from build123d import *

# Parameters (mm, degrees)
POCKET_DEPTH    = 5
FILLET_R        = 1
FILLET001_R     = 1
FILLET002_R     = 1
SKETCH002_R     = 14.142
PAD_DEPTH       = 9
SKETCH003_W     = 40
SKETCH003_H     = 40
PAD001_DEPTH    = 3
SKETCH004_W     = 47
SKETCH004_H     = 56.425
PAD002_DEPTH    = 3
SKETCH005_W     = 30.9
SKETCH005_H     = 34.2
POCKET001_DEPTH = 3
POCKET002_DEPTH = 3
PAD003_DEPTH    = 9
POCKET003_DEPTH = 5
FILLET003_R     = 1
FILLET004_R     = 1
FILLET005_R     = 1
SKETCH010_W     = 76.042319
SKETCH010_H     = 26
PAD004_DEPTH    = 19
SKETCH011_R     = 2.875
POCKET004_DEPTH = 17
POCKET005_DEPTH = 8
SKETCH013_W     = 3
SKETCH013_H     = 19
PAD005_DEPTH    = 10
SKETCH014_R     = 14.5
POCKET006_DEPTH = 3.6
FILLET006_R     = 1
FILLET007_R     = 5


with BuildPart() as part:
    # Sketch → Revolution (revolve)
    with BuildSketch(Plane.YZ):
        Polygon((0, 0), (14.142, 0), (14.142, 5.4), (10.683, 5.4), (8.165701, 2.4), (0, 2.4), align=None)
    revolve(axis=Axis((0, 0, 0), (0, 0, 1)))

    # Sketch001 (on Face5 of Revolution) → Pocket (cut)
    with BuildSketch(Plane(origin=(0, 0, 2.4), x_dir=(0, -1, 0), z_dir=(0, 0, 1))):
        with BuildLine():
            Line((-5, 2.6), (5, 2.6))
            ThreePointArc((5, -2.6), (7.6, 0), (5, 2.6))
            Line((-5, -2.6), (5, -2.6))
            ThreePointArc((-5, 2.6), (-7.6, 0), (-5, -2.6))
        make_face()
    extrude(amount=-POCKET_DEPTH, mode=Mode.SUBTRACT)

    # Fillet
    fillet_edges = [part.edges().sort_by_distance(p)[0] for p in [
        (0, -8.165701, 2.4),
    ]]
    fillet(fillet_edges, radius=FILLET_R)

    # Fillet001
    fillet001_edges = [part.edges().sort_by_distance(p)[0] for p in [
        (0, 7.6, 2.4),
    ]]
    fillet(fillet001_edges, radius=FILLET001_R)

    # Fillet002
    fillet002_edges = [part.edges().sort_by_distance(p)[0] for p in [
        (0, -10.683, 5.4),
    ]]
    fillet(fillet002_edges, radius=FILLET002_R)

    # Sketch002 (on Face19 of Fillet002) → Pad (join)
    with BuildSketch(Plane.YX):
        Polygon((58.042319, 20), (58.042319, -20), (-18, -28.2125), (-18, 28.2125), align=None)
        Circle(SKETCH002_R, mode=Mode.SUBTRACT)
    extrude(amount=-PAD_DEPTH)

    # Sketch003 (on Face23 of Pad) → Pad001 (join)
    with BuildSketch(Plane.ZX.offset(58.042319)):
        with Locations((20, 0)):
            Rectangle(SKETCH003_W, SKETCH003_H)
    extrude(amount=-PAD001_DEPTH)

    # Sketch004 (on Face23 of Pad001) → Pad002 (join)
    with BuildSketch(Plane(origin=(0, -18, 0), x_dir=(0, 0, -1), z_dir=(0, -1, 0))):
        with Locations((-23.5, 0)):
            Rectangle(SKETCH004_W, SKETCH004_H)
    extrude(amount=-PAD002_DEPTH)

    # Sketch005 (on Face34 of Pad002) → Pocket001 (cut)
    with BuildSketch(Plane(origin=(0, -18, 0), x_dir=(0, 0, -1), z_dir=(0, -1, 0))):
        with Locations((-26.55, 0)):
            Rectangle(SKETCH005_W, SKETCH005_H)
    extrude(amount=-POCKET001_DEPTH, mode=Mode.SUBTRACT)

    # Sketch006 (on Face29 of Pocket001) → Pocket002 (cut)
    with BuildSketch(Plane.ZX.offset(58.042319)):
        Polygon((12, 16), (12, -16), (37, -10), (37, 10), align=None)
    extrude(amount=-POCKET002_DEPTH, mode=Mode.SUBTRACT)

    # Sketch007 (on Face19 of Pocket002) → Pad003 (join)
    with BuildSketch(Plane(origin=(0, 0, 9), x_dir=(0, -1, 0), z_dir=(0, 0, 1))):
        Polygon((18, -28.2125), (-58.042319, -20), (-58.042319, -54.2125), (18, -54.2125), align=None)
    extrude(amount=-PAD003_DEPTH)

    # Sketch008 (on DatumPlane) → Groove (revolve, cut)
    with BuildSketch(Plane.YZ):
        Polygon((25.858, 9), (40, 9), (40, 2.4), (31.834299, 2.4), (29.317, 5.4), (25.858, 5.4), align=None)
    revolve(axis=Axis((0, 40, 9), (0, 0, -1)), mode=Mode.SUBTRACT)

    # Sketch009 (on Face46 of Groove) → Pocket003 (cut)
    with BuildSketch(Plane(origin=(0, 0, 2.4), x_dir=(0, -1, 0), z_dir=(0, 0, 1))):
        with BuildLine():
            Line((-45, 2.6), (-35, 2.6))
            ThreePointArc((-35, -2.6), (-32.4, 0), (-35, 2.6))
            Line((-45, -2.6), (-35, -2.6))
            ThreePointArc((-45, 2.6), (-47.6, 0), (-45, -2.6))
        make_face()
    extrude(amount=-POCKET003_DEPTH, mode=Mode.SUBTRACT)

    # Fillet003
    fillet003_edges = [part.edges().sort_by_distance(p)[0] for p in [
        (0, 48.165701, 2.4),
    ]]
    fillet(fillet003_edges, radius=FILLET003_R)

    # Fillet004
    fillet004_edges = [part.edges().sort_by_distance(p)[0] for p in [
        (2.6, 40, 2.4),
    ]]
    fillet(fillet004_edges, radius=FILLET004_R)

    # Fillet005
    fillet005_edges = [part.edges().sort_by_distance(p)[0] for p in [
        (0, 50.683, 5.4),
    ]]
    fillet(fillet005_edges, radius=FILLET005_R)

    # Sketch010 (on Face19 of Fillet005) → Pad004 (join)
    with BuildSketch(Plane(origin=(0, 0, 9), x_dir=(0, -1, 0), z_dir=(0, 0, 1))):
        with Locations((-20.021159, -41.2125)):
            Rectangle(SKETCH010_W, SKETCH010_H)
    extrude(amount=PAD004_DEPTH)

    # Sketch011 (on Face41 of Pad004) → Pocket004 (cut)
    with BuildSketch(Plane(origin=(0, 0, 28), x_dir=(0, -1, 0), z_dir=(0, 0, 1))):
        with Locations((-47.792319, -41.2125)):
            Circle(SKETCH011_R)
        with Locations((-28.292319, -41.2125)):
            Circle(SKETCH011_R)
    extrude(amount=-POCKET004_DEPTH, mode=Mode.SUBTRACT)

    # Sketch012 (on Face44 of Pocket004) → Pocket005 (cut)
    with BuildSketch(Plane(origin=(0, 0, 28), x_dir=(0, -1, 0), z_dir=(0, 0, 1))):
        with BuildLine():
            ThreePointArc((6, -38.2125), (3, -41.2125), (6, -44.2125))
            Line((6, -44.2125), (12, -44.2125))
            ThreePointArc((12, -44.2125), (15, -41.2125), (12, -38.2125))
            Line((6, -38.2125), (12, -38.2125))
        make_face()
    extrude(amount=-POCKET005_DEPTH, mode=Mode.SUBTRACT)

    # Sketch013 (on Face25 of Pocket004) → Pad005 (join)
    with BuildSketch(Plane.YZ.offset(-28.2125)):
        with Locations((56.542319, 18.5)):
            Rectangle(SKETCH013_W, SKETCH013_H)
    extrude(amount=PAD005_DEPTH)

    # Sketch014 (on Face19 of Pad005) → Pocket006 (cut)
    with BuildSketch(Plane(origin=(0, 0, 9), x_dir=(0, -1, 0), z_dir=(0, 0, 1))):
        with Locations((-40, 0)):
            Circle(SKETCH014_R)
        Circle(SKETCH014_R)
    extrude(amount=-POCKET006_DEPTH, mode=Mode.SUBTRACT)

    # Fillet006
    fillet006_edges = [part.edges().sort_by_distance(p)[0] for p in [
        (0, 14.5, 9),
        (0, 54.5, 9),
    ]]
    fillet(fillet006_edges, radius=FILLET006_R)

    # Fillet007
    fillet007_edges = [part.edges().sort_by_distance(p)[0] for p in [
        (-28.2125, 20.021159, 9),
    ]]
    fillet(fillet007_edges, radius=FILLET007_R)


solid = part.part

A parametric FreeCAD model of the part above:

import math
import FreeCAD as App
import Part
import Sketcher
from FreeCAD import Vector
Q = App.Units.Quantity


def edges_at(feature, points):
    """Names of the edges that pass closest to the given points."""
    edges = feature.Shape.Edges
    near = lambda p: min(range(len(edges)), key=lambda i: edges[i].distToShape(Part.Vertex(*p))[0])
    return sorted({f"Edge{near(p) + 1}" for p in points})


def add_polygon(sketch, points):
    """Adds a closed chain of lines whose ends are joined by coincident constraints."""
    first, n = sketch.GeometryCount, len(points)
    for a, b in zip(points, points[1:] + points[:1]):
        sketch.addGeometry(Part.LineSegment(App.Vector(*a, 0), App.Vector(*b, 0)), False)
    for i in range(n):
        sketch.addConstraint(Sketcher.Constraint("Coincident", first + i, 2, first + (i + 1) % n, 1))

doc = App.newDocument("Part")
body = doc.addObject("PartDesign::Body", "Body")

# Sketch on YZ plane
sketch1 = doc.addObject("Sketcher::SketchObject", "Sketch")
body.addObject(sketch1)
sketch1.AttachmentSupport = (doc.YZ_Plane, [""])
sketch1.MapMode = "FlatFace"
add_polygon(sketch1, [(0, 0), (14.142, 0), (14.142, 5.4), (10.683, 5.4), (8.165701, 2.4), (0, 2.4)])  # lines 0-5
sketch1.addConstraint([
    Sketcher.Constraint("Horizontal", 0),
    Sketcher.Constraint("Vertical", 1),
    Sketcher.Constraint("Horizontal", 2),
    Sketcher.Constraint("Horizontal", 4),
    Sketcher.Constraint("Vertical", 5),
    Sketcher.Constraint("Coincident", 5, 2, -1, 1),
    Sketcher.Constraint("Angle", 3, Q("-130.000001 deg")),
    Sketcher.Constraint("DistanceY", 1, 1, 1, 2, 5.4),
    Sketcher.Constraint("DistanceY", 5, 2, 5, 1, 2.4),
    Sketcher.Constraint("DistanceX", 0, 1, 0, 2, 14.142),
    Sketcher.Constraint("DistanceX", 2, 2, 2, 1, 3.459),
])
revolution = doc.addObject("PartDesign::Revolution", "Revolution")
body.addObject(revolution)
revolution.Profile = sketch1
revolution.ReferenceAxis = (sketch1, ["V_Axis"])
revolution.Angle = 360

# Sketch on XY plane
sketch2 = doc.addObject("Sketcher::SketchObject", "Sketch001")
body.addObject(sketch2)
sketch2.AttachmentSupport = (doc.XY_Plane, [""])
sketch2.MapMode = "FlatFace"
sketch2.AttachmentOffset = App.Placement(Vector(0, 0, 2.4), App.Rotation())
sketch2.addGeometry([
    Part.LineSegment(Vector(2.6, -5, 0), Vector(2.6, 5, 0)),
    Part.ArcOfCircle(Part.Circle(Vector(0, 5, 0), Vector(0, 0, 1), 2.6), math.radians(0), math.radians(180)),
    Part.LineSegment(Vector(-2.6, 5, 0), Vector(-2.6, -5, 0)),
    Part.ArcOfCircle(Part.Circle(Vector(0, -5, 0), Vector(0, 0, 1), 2.6), math.radians(180), math.radians(360)),
], False)
sketch2.addConstraint([
    Sketcher.Constraint("Tangent", 0, 2, 1, 1),
    Sketcher.Constraint("Tangent", 1, 2, 2, 1),
    Sketcher.Constraint("Tangent", 2, 2, 3, 1),
    Sketcher.Constraint("Tangent", 3, 2, 0, 1),
    Sketcher.Constraint("Vertical", 0),
    Sketcher.Constraint("Vertical", 2),
    Sketcher.Constraint("Symmetric", 1, 3, 3, 3, -1, 1),
    Sketcher.Constraint("Radius", 1, 2.6),
    Sketcher.Constraint("DistanceY", 0, 1, 0, 2, 10.0),
])
pocket1 = doc.addObject("PartDesign::Pocket", "Pocket")
body.addObject(pocket1)
pocket1.Profile = sketch2
pocket1.Length = 5
doc.recompute()

fillet = doc.addObject("PartDesign::Fillet", "Fillet")
body.addObject(fillet)
fillet.Base = (pocket1, edges_at(pocket1, [(0, -8.166, 2.4)]))
fillet.Radius = 1
doc.recompute()

fillet2 = doc.addObject("PartDesign::Fillet", "Fillet001")
body.addObject(fillet2)
fillet2.Base = (fillet, edges_at(fillet, [(0, 7.6, 2.4)]))
fillet2.Radius = 1
doc.recompute()

fillet3 = doc.addObject("PartDesign::Fillet", "Fillet002")
body.addObject(fillet3)
fillet3.Base = (fillet2, edges_at(fillet2, [(0, -10.683, 5.4)]))
fillet3.Radius = 1

# Sketch on XY plane
sketch3 = doc.addObject("Sketcher::SketchObject", "Sketch002")
body.addObject(sketch3)
sketch3.AttachmentSupport = (doc.XY_Plane, [""])
sketch3.MapMode = "FlatFace"
add_polygon(sketch3, [(-20, 58.042319), (20, 58.042319), (28.2125, -18), (-28.2125, -18)])  # lines 0-3
sketch3.addGeometry(Part.Circle(Vector(0, 0, 0), Vector(0, 0, 1), 14.142), False)  # 4
sketch3.addConstraint([
    Sketcher.Constraint("Horizontal", 0),
    Sketcher.Constraint("Horizontal", 2),
    Sketcher.Constraint("Coincident", 4, 3, -1, 1),
    Sketcher.Constraint("Equal", 1, 3),
    Sketcher.Constraint("DistanceX", 0, 1, 0, 2, 40.0),
    Sketcher.Constraint("Diameter", 4, 28.284),
    Sketcher.Constraint("DistanceX", -1, 1, 0, 2, 20.0),
    Sketcher.Constraint("DistanceY", 1, 2, -1, 1, 18.0),
    Sketcher.Constraint("DistanceX", 2, 2, 2, 1, 56.425),
    Sketcher.Constraint("DistanceY", -1, 1, 0, 2, 58.042319),
])
pad1 = doc.addObject("PartDesign::Pad", "Pad")
body.addObject(pad1)
pad1.Profile = sketch3
pad1.Length = 9

# Sketch on XZ plane
sketch4 = doc.addObject("Sketcher::SketchObject", "Sketch003")
body.addObject(sketch4)
sketch4.AttachmentSupport = (doc.XZ_Plane, [""])
sketch4.MapMode = "FlatFace"
sketch4.AttachmentOffset = App.Placement(Vector(0, 0, -58.042319), App.Rotation())
add_polygon(sketch4, [(20, 0), (-20, 0), (-20, 40), (20, 40)])  # lines 0-3
sketch4.addConstraint([
    Sketcher.Constraint("Horizontal", 0),
    Sketcher.Constraint("Vertical", 1),
    Sketcher.Constraint("Horizontal", 2),
    Sketcher.Constraint("Vertical", 3),
    Sketcher.Constraint("Symmetric", 0, 2, 3, 2, -1, 1),
    Sketcher.Constraint("Equal", 2, 1),
    Sketcher.Constraint("DistanceX", 0, 2, 0, 1, 40.0),
])
pad2 = doc.addObject("PartDesign::Pad", "Pad001")
body.addObject(pad2)
pad2.Profile = sketch4
pad2.Length = 3

# Sketch on XZ plane
sketch5 = doc.addObject("Sketcher::SketchObject", "Sketch004")
body.addObject(sketch5)
sketch5.AttachmentSupport = (doc.XZ_Plane, [""])
sketch5.MapMode = "FlatFace"
sketch5.AttachmentOffset = App.Placement(Vector(0, 0, 18), App.Rotation())
add_polygon(sketch5, [(28.2125, 47), (-28.2125, 47), (-28.2125, 0), (28.2125, 0)])  # lines 0-3
sketch5.addConstraint([
    Sketcher.Constraint("Horizontal", 0),
    Sketcher.Constraint("Vertical", 1),
    Sketcher.Constraint("Horizontal", 2),
    Sketcher.Constraint("Vertical", 3),
    Sketcher.Constraint("Symmetric", 1, 2, 2, 2, -1, 1),
    Sketcher.Constraint("DistanceY", 1, 2, 1, 1, 47.0),
    Sketcher.Constraint("DistanceX", 0, 2, 0, 1, 56.425),
])
pad3 = doc.addObject("PartDesign::Pad", "Pad002")
body.addObject(pad3)
pad3.Profile = sketch5
pad3.Length = 3
pad3.Reversed = True

# Sketch on XZ plane
sketch6 = doc.addObject("Sketcher::SketchObject", "Sketch005")
body.addObject(sketch6)
sketch6.AttachmentSupport = (doc.XZ_Plane, [""])
sketch6.MapMode = "FlatFace"
sketch6.AttachmentOffset = App.Placement(Vector(0, 0, 18), App.Rotation())
add_polygon(sketch6, [(17.1, 42), (-17.1, 42), (-17.1, 11.1), (17.1, 11.1)])  # lines 0-3
sketch6.addConstraint([
    Sketcher.Constraint("Horizontal", 0),
    Sketcher.Constraint("Vertical", 1),
    Sketcher.Constraint("Horizontal", 2),
    Sketcher.Constraint("Vertical", 3),
    Sketcher.Constraint("DistanceX", 0, 2, 0, 1, 34.2),
    Sketcher.Constraint("DistanceY", 1, 2, 1, 1, 30.9),
    Sketcher.Constraint("DistanceY", -1, 1, 0, 2, 42.0),
    Sketcher.Constraint("DistanceX", 0, 2, -1, 1, 17.1),
])
pocket2 = doc.addObject("PartDesign::Pocket", "Pocket001")
body.addObject(pocket2)
pocket2.Profile = sketch6
pocket2.Length = 3

# Sketch on XZ plane
sketch7 = doc.addObject("Sketcher::SketchObject", "Sketch006")
body.addObject(sketch7)
sketch7.AttachmentSupport = (doc.XZ_Plane, [""])
sketch7.MapMode = "FlatFace"
sketch7.AttachmentOffset = App.Placement(Vector(0, 0, -58.042319), App.Rotation())
add_polygon(sketch7, [(16, 12), (-16, 12), (-10, 37), (10, 37)])  # lines 0-3
sketch7.addConstraint([
    Sketcher.Constraint("Horizontal", 0),
    Sketcher.Constraint("Horizontal", 2),
    Sketcher.Constraint("Equal", 1, 3),
    Sketcher.Constraint("DistanceX", 0, 2, 0, 1, 32.0),
    Sketcher.Constraint("DistanceX", 2, 1, 2, 2, 20.0),
    Sketcher.Constraint("DistanceX", 0, 2, -1, 1, 16.0),
    Sketcher.Constraint("DistanceY", -1, 1, 0, 2, 12.0),
    Sketcher.Constraint("DistanceY", -1, 1, 1, 2, 37.0),
])
pocket3 = doc.addObject("PartDesign::Pocket", "Pocket002")
body.addObject(pocket3)
pocket3.Profile = sketch7
pocket3.Length = 3
pocket3.Reversed = True

# Sketch on XY plane
sketch8 = doc.addObject("Sketcher::SketchObject", "Sketch007")
body.addObject(sketch8)
sketch8.AttachmentSupport = (doc.XY_Plane, [""])
sketch8.MapMode = "FlatFace"
sketch8.AttachmentOffset = App.Placement(Vector(0, 0, 9), App.Rotation())
add_polygon(sketch8, [(-28.2125, -18), (-20, 58.042319), (-54.2125, 58.042319), (-54.2125, -18)])  # lines 0-3
sketch8.addConstraint([
    Sketcher.Constraint("Horizontal", 1),
    Sketcher.Constraint("Vertical", 2),
    Sketcher.Constraint("Horizontal", 3),
    Sketcher.Constraint("DistanceX", 3, 1, 3, 2, 26.0),
    Sketcher.Constraint("DistanceX", 0, 2, -1, 1, 20.0),
    Sketcher.Constraint("DistanceY", 2, 2, -1, 1, 18.0),
    Sketcher.Constraint("DistanceX", 1, 2, 1, 1, 34.2125),
    Sketcher.Constraint("DistanceY", 2, 2, 2, 1, 76.042319),
])
pad4 = doc.addObject("PartDesign::Pad", "Pad003")
body.addObject(pad4)
pad4.Profile = sketch8
pad4.Length = 9
pad4.Reversed = True

# Sketch on YZ plane
sketch9 = doc.addObject("Sketcher::SketchObject", "Sketch008")
body.addObject(sketch9)
sketch9.AttachmentSupport = (doc.YZ_Plane, [""])
sketch9.MapMode = "FlatFace"
add_polygon(sketch9, [(40, 9), (25.858, 9), (25.858, 5.4), (29.317, 5.4), (31.834299, 2.4), (40, 2.4)])  # lines 0-5
sketch9.addGeometry(Part.LineSegment(Vector(40, 9, 0), Vector(40, 2.4, 0)), True)  # axis
sketch9.addConstraint([
    Sketcher.Constraint("Horizontal", 0),
    Sketcher.Constraint("Vertical", 1),
    Sketcher.Constraint("Horizontal", 2),
    Sketcher.Constraint("Horizontal", 4),
    Sketcher.Constraint("Vertical", 5),
    Sketcher.Constraint("Vertical", 6),
    Sketcher.Constraint("Coincident", 6, 1, 5, 2),
    Sketcher.Constraint("Horizontal", 3, 2, 6, 2),
    Sketcher.Constraint("Angle", 3, Q("-49.999999 deg")),
    Sketcher.Constraint("DistanceY", 1, 2, 1, 1, 3.6),
    Sketcher.Constraint("DistanceY", 5, 1, 5, 2, 6.6),
    Sketcher.Constraint("DistanceY", -1, 1, 0, 2, 9.0),
    Sketcher.Constraint("DistanceX", -1, 1, 4, 2, 40.0),
    Sketcher.Constraint("DistanceX", 0, 2, 0, 1, 14.142),
    Sketcher.Constraint("DistanceX", 2, 1, 2, 2, 3.459),
])
groove = doc.addObject("PartDesign::Groove", "Groove")
body.addObject(groove)
groove.Profile = sketch9
groove.ReferenceAxis = (sketch9, ["Axis0"])
groove.Angle = 360

# Sketch on XY plane
sketch10 = doc.addObject("Sketcher::SketchObject", "Sketch009")
body.addObject(sketch10)
sketch10.AttachmentSupport = (doc.XY_Plane, [""])
sketch10.MapMode = "FlatFace"
sketch10.AttachmentOffset = App.Placement(Vector(0, 0, 2.4), App.Rotation())
sketch10.addGeometry([
    Part.LineSegment(Vector(2.6, 35, 0), Vector(2.6, 45, 0)),
    Part.ArcOfCircle(Part.Circle(Vector(0, 45, 0), Vector(0, 0, 1), 2.6), math.radians(0), math.radians(180)),
    Part.LineSegment(Vector(-2.6, 45, 0), Vector(-2.6, 35, 0)),
    Part.ArcOfCircle(Part.Circle(Vector(0, 35, 0), Vector(0, 0, 1), 2.6), math.radians(180), math.radians(360)),
], False)
sketch10.addConstraint([
    Sketcher.Constraint("Tangent", 0, 2, 1, 1),
    Sketcher.Constraint("Tangent", 1, 2, 2, 1),
    Sketcher.Constraint("Tangent", 2, 2, 3, 1),
    Sketcher.Constraint("Tangent", 3, 2, 0, 1),
    Sketcher.Constraint("Vertical", 0),
    Sketcher.Constraint("Vertical", 2),
    Sketcher.Constraint("PointOnObject", 1, 3, -2),
    Sketcher.Constraint("Radius", 1, 2.6),
    Sketcher.Constraint("DistanceY", 0, 1, 0, 2, 10.0),
    Sketcher.Constraint("DistanceY", -1, 1, 1, 3, 45.0),
])
pocket4 = doc.addObject("PartDesign::Pocket", "Pocket003")
body.addObject(pocket4)
pocket4.Profile = sketch10
pocket4.Length = 5
doc.recompute()

fillet4 = doc.addObject("PartDesign::Fillet", "Fillet003")
body.addObject(fillet4)
fillet4.Base = (pocket4, edges_at(pocket4, [(0, 48.166, 2.4)]))
fillet4.Radius = 1
doc.recompute()

fillet5 = doc.addObject("PartDesign::Fillet", "Fillet004")
body.addObject(fillet5)
fillet5.Base = (fillet4, edges_at(fillet4, [(2.6, 40, 2.4)]))
fillet5.Radius = 1
doc.recompute()

fillet6 = doc.addObject("PartDesign::Fillet", "Fillet005")
body.addObject(fillet6)
fillet6.Base = (fillet5, edges_at(fillet5, [(0, 50.683, 5.4)]))
fillet6.Radius = 1

# Sketch on XY plane
sketch11 = doc.addObject("Sketcher::SketchObject", "Sketch010")
body.addObject(sketch11)
sketch11.AttachmentSupport = (doc.XY_Plane, [""])
sketch11.MapMode = "FlatFace"
sketch11.AttachmentOffset = App.Placement(Vector(0, 0, 9), App.Rotation())
add_polygon(sketch11, [(-28.2125, 58.042319), (-54.2125, 58.042319), (-54.2125, -18), (-28.2125, -18)])  # lines 0-3
sketch11.addConstraint([
    Sketcher.Constraint("Horizontal", 0),
    Sketcher.Constraint("Vertical", 1),
    Sketcher.Constraint("Horizontal", 2),
    Sketcher.Constraint("Vertical", 3),
    Sketcher.Constraint("DistanceX", 0, 2, 0, 1, 26.0),
    Sketcher.Constraint("DistanceY", 1, 2, -1, 1, 18.0),
    Sketcher.Constraint("DistanceY", 1, 2, 1, 1, 76.042319),
    Sketcher.Constraint("DistanceX", 0, 2, -1, 1, 54.2125),
])
pad5 = doc.addObject("PartDesign::Pad", "Pad004")
body.addObject(pad5)
pad5.Profile = sketch11
pad5.Length = 19

# Sketch on XY plane
sketch12 = doc.addObject("Sketcher::SketchObject", "Sketch011")
body.addObject(sketch12)
sketch12.AttachmentSupport = (doc.XY_Plane, [""])
sketch12.MapMode = "FlatFace"
sketch12.AttachmentOffset = App.Placement(Vector(0, 0, 28), App.Rotation())
sketch12.addGeometry([
    Part.Circle(Vector(-41.2125, 47.792319, 0), Vector(0, 0, 1), 2.875),
    Part.Circle(Vector(-41.2125, 28.292319, 0), Vector(0, 0, 1), 2.875),
], False)
sketch12.addConstraint([
    Sketcher.Constraint("Equal", 0, 1),
    Sketcher.Constraint("Vertical", 0, 3, 1, 3),
    Sketcher.Constraint("Diameter", 0, 5.75),
    Sketcher.Constraint("DistanceY", 1, 3, 0, 3, 19.5),
    Sketcher.Constraint("DistanceX", 0, 3, -1, 1, 41.2125),
    Sketcher.Constraint("DistanceY", -1, 1, 0, 3, 47.792319),
])
pocket5 = doc.addObject("PartDesign::Pocket", "Pocket004")
body.addObject(pocket5)
pocket5.Profile = sketch12
pocket5.Length = 17

# Sketch on XY plane
sketch13 = doc.addObject("Sketcher::SketchObject", "Sketch012")
body.addObject(sketch13)
sketch13.AttachmentSupport = (doc.XY_Plane, [""])
sketch13.MapMode = "FlatFace"
sketch13.AttachmentOffset = App.Placement(Vector(0, 0, 28), App.Rotation())
sketch13.addGeometry([
    Part.ArcOfCircle(Part.Circle(Vector(-41.2125, -6, 0), Vector(0, 0, 1), 3), math.radians(0), math.radians(180)),
    Part.LineSegment(Vector(-44.2125, -6, 0), Vector(-44.2125, -12, 0)),
    Part.ArcOfCircle(Part.Circle(Vector(-41.2125, -12, 0), Vector(0, 0, 1), 3), math.radians(180), math.radians(360)),
    Part.LineSegment(Vector(-38.2125, -12, 0), Vector(-38.2125, -6, 0)),
], False)
sketch13.addConstraint([
    Sketcher.Constraint("Tangent", 0, 2, 1, 1),
    Sketcher.Constraint("Tangent", 1, 2, 2, 1),
    Sketcher.Constraint("Tangent", 2, 2, 3, 1),
    Sketcher.Constraint("Tangent", 3, 2, 0, 1),
    Sketcher.Constraint("Vertical", 1),
    Sketcher.Constraint("Vertical", 3),
    Sketcher.Constraint("Radius", 0, 3.0),
    Sketcher.Constraint("DistanceY", 1, 2, 1, 1, 6.0),
    Sketcher.Constraint("DistanceY", 0, 3, -1, 1, 6.0),
    Sketcher.Constraint("DistanceX", 0, 3, -1, 1, 41.2125),
])
pocket6 = doc.addObject("PartDesign::Pocket", "Pocket005")
body.addObject(pocket6)
pocket6.Profile = sketch13
pocket6.Length = 8

# Sketch on YZ plane
sketch14 = doc.addObject("Sketcher::SketchObject", "Sketch013")
body.addObject(sketch14)
sketch14.AttachmentSupport = (doc.YZ_Plane, [""])
sketch14.MapMode = "FlatFace"
sketch14.AttachmentOffset = App.Placement(Vector(0, 0, -28.2125), App.Rotation())
add_polygon(sketch14, [(55.042319, 28), (55.042319, 9), (58.042319, 9), (58.042319, 28)])  # lines 0-3
sketch14.addConstraint([
    Sketcher.Constraint("Vertical", 0),
    Sketcher.Constraint("Horizontal", 1),
    Sketcher.Constraint("Vertical", 2),
    Sketcher.Constraint("Horizontal", 3),
    Sketcher.Constraint("DistanceX", 1, 1, 1, 2, 3.0),
    Sketcher.Constraint("DistanceY", 0, 2, 0, 1, 19.0),
    Sketcher.Constraint("DistanceY", -1, 1, 0, 2, 9.0),
    Sketcher.Constraint("DistanceX", -1, 1, 0, 2, 55.042319),
])
pad6 = doc.addObject("PartDesign::Pad", "Pad005")
body.addObject(pad6)
pad6.Profile = sketch14
pad6.Length = 10

# Sketch on XY plane
sketch15 = doc.addObject("Sketcher::SketchObject", "Sketch014")
body.addObject(sketch15)
sketch15.AttachmentSupport = (doc.XY_Plane, [""])
sketch15.MapMode = "FlatFace"
sketch15.AttachmentOffset = App.Placement(Vector(0, 0, 9), App.Rotation())
sketch15.addGeometry([
    Part.Circle(Vector(0, 40, 0), Vector(0, 0, 1), 14.5),
    Part.Circle(Vector(0, 0, 0), Vector(0, 0, 1), 14.5),
], False)
sketch15.addConstraint([
    Sketcher.Constraint("Coincident", 1, 3, -1, 1),
    Sketcher.Constraint("Equal", 0, 1),
    Sketcher.Constraint("PointOnObject", 0, 3, -2),
    Sketcher.Constraint("Diameter", 0, 29.0),
    Sketcher.Constraint("DistanceY", -1, 1, 0, 3, 40.0),
])
pocket7 = doc.addObject("PartDesign::Pocket", "Pocket006")
body.addObject(pocket7)
pocket7.Profile = sketch15
pocket7.Length = 3.6
doc.recompute()

fillet7 = doc.addObject("PartDesign::Fillet", "Fillet006")
body.addObject(fillet7)
fillet7.Base = (pocket7, edges_at(pocket7, [(0, 14.5, 9), (0, 54.5, 9)]))
fillet7.Radius = 1
doc.recompute()

fillet8 = doc.addObject("PartDesign::Fillet", "Fillet007")
body.addObject(fillet8)
fillet8.Base = (fillet7, edges_at(fillet7, [(-28.212, 20.021, 9)]))
fillet8.Radius = 5

doc.recompute()
